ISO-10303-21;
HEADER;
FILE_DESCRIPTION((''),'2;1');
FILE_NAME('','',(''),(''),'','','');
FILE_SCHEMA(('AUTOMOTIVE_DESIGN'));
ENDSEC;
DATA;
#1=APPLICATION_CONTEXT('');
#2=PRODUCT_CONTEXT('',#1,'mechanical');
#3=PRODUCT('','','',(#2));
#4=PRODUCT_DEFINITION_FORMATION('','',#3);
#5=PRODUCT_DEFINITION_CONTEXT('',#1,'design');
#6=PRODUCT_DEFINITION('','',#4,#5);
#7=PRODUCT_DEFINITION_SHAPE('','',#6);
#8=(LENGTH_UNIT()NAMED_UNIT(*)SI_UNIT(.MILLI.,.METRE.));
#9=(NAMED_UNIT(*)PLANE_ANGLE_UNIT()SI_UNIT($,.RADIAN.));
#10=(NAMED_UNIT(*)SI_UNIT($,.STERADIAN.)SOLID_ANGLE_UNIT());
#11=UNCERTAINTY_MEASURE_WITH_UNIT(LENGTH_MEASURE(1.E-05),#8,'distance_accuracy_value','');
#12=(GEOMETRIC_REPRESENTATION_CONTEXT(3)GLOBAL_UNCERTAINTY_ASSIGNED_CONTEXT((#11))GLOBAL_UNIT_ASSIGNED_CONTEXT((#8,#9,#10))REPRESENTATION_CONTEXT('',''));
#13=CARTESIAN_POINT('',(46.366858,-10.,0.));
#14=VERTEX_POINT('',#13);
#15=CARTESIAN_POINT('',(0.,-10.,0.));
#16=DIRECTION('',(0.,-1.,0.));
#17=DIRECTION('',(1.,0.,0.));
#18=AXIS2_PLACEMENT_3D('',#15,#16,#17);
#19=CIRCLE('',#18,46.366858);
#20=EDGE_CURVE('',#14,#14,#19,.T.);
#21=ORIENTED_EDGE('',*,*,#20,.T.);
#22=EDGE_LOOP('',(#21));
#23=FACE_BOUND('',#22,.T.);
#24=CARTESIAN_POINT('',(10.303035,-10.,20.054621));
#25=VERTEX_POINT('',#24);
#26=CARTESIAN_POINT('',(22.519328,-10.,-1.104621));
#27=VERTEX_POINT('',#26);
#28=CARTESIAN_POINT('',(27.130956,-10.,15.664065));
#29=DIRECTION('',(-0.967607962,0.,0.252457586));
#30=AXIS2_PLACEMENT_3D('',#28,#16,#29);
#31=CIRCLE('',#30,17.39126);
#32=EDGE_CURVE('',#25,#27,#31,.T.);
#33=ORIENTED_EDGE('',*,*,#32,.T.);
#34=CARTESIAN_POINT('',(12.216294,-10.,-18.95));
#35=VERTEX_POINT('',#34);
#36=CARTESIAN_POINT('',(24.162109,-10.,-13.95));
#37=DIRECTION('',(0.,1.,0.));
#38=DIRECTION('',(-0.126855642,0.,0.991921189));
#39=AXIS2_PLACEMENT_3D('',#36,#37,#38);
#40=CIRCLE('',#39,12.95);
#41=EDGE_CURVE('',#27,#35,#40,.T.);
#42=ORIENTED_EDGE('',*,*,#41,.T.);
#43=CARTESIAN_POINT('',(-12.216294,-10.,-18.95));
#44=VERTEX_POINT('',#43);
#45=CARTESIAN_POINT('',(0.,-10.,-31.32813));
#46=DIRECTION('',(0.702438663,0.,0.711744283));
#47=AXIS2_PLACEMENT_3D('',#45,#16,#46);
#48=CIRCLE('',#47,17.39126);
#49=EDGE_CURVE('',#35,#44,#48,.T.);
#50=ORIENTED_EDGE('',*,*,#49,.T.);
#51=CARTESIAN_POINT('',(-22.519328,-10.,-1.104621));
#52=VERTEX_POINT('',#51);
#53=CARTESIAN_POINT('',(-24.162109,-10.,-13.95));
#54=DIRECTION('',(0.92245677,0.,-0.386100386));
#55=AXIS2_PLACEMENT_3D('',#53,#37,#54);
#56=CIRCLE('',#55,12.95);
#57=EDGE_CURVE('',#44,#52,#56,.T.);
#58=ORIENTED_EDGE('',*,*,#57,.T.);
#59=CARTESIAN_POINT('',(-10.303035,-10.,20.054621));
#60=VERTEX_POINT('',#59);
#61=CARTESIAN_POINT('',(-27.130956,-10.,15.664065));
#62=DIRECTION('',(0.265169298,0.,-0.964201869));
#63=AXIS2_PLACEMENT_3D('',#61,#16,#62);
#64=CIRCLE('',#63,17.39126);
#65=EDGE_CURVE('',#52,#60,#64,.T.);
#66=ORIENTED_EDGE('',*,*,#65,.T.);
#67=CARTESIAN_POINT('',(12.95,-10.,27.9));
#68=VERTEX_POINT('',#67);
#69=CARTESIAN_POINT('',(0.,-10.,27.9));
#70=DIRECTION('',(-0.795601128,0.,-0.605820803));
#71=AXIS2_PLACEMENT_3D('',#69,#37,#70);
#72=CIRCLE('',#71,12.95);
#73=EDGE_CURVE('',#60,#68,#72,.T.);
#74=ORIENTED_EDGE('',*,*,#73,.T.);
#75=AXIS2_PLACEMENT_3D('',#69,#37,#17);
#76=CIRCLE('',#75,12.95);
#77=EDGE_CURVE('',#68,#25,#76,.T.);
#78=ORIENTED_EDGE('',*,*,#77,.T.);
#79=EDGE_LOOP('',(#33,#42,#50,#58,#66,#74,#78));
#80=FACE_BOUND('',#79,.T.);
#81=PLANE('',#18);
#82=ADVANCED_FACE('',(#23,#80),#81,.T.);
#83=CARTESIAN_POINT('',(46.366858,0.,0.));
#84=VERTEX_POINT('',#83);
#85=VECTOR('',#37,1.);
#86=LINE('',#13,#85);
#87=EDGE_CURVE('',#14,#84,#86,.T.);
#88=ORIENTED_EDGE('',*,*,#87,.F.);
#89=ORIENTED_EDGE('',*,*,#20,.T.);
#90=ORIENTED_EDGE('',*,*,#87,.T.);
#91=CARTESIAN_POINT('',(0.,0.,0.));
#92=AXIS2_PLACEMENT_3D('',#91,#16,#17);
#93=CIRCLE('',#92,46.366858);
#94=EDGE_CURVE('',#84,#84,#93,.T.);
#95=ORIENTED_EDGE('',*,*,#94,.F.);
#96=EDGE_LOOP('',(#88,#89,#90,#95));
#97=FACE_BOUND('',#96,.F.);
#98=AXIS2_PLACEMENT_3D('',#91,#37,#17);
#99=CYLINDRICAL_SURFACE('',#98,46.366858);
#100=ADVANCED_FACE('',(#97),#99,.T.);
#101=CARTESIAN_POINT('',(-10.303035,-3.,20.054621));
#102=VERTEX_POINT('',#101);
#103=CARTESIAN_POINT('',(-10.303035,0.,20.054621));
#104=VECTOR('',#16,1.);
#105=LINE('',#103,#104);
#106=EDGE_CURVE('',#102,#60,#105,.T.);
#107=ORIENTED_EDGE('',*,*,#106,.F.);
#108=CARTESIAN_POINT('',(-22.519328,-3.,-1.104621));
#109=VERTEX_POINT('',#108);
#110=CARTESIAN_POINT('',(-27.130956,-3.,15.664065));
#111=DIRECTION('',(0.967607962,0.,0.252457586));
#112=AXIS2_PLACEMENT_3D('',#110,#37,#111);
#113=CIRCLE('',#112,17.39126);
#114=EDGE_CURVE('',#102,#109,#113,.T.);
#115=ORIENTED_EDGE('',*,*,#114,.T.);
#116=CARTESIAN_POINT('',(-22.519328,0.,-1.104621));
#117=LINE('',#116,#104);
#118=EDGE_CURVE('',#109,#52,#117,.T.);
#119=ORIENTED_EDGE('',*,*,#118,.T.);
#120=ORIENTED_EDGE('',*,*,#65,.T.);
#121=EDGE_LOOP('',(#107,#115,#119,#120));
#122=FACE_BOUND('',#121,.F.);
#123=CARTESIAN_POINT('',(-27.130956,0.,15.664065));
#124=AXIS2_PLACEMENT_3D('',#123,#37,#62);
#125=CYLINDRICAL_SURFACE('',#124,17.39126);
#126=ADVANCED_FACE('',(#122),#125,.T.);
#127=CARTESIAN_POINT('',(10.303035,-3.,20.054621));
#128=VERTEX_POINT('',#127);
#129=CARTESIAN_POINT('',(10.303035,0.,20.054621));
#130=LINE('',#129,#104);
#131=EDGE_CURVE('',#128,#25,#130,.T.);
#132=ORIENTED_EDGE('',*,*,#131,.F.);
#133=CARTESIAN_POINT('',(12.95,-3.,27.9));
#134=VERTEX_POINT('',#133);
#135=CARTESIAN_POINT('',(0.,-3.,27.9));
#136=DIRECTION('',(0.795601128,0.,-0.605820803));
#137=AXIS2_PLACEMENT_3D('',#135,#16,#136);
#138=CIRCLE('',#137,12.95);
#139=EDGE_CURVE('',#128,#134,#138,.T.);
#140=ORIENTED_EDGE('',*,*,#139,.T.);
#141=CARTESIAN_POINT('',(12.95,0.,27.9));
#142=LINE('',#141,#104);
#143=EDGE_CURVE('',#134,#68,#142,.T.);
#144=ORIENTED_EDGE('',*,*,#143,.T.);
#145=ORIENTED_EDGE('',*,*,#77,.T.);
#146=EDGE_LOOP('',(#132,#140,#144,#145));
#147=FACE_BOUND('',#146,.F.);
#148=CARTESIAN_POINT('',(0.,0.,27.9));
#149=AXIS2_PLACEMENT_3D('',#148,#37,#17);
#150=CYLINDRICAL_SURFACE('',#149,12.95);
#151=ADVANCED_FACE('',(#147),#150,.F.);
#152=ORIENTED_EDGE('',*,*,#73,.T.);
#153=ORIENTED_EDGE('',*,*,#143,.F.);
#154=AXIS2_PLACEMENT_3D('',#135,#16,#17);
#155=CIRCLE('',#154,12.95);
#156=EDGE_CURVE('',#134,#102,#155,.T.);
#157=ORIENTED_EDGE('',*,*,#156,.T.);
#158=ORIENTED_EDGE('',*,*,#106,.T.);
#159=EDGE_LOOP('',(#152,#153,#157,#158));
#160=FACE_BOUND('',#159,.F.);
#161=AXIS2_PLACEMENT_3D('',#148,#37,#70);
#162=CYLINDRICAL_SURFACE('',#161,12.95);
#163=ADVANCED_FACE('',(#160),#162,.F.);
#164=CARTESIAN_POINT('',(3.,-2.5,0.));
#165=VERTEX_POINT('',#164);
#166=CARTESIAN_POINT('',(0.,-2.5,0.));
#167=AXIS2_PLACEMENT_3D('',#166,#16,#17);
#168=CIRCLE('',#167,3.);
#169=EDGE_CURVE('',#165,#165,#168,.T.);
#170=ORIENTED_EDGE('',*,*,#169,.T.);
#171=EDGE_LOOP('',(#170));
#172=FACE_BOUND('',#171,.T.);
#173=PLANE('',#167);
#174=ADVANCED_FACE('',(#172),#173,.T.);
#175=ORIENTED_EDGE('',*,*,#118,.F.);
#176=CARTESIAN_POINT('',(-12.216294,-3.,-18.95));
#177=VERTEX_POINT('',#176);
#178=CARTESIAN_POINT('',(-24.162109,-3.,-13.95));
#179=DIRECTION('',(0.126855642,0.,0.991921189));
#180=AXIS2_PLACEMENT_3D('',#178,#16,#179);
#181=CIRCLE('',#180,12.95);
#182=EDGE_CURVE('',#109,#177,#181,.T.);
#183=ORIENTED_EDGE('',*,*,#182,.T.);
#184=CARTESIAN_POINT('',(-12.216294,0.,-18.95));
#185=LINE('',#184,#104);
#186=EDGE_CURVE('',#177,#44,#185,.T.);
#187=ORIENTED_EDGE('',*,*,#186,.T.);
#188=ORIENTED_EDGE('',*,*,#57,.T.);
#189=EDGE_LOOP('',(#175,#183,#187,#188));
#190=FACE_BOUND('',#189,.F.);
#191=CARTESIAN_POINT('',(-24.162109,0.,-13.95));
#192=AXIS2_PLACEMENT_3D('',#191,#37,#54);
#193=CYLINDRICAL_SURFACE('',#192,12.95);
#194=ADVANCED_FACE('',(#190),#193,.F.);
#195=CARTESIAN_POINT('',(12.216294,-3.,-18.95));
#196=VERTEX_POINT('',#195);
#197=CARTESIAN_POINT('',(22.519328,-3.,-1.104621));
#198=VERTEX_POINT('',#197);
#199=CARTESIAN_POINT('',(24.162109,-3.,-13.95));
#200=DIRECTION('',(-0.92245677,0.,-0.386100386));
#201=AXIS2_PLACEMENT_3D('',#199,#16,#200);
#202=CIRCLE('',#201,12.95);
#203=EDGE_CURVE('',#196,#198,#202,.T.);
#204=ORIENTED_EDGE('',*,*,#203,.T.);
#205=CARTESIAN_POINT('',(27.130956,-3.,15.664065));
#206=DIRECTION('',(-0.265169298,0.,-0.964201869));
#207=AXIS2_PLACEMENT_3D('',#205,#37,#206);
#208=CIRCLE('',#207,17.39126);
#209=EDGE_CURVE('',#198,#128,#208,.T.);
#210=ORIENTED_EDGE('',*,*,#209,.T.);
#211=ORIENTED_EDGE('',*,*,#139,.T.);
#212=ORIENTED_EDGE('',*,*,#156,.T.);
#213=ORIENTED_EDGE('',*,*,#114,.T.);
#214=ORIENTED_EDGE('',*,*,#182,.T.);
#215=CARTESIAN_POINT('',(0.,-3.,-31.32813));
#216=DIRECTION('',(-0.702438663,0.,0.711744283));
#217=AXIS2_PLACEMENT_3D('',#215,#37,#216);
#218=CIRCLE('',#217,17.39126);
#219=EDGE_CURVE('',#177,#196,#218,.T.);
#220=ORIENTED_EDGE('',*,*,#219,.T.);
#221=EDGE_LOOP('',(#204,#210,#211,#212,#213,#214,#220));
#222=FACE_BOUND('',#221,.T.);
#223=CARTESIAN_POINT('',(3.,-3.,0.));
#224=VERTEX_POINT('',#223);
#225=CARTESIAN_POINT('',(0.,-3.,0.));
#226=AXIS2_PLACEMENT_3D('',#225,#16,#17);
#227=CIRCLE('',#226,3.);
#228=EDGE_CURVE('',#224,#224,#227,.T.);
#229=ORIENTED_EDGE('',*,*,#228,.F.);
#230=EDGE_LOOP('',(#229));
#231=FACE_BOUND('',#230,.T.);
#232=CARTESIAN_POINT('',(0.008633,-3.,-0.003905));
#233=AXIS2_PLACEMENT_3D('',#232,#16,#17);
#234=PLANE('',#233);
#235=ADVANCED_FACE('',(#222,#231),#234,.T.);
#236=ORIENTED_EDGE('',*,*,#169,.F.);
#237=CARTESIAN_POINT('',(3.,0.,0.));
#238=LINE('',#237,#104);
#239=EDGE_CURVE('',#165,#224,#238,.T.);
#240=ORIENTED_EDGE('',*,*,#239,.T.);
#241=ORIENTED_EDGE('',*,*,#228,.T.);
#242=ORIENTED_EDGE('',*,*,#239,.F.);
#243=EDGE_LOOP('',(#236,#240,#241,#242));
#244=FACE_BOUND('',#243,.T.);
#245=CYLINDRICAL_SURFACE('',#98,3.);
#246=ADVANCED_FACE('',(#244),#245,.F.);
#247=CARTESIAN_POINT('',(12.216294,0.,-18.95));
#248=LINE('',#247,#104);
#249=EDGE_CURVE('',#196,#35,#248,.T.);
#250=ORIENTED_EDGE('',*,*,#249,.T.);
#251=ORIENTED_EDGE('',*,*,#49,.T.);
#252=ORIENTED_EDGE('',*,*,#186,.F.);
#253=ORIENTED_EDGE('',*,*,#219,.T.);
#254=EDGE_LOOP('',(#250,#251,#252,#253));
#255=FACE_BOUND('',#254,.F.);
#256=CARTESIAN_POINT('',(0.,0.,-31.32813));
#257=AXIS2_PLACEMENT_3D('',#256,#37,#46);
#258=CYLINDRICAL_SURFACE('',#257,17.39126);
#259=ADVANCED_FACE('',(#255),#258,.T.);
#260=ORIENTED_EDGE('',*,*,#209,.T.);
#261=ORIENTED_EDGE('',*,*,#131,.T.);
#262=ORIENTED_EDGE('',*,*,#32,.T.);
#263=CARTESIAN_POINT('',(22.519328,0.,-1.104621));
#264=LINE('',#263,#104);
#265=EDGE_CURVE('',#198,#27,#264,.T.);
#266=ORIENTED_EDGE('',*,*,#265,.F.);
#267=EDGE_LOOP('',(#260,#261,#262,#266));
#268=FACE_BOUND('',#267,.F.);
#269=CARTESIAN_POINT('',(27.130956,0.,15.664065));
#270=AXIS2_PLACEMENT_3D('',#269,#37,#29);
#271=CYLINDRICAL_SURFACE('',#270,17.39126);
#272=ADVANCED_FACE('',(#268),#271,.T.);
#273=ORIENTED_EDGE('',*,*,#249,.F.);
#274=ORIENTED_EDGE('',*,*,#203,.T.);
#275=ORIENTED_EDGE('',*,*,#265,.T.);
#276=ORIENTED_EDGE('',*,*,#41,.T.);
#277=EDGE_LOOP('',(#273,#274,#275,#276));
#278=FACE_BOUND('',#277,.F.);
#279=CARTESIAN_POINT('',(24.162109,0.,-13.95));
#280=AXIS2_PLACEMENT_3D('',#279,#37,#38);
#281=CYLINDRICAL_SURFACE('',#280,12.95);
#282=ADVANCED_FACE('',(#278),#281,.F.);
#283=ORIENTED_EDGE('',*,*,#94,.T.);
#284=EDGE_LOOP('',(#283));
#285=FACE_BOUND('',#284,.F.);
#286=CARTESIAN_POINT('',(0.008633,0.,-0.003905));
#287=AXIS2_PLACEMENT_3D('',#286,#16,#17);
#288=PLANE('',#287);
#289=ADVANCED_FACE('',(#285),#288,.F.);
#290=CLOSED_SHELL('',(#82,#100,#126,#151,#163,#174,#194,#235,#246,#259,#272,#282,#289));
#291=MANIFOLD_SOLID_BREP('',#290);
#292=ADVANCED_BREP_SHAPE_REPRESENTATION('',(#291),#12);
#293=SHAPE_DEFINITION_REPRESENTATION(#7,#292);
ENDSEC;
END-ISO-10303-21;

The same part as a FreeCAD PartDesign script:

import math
import FreeCAD as App
import Part
import Sketcher
from FreeCAD import Vector
Q = App.Units.Quantity

doc = App.newDocument("Part")
params = doc.addObject("Spreadsheet::Sheet", "Params")
for row, (alias, value) in enumerate([
    ("sketch1_radius", "12.95 mm"),
    ("sketch1_height", "5 mm"),
    ("pad1_length", "10 mm"),
    ("sketch2_diameter", "6 mm"),
    ("sketch2_radius", "12.95 mm"),
    ("sketch2_height", "5 mm"),
    ("pad2_length", "3 mm"),
    ("sketch3_diameter", "6 mm"),
    ("sketch3_radius", "12.95 mm"),
    ("sketch3_height", "5 mm"),
    ("pad3_length", "2.5 mm"),
], start=1):
    params.set(f"A{row}", alias)
    params.set(f"B{row}", "=" + value)
    params.setAlias(f"B{row}", alias)

body = doc.addObject("PartDesign::Body", "Body")

# Sketch on XZ plane
sketch1 = doc.addObject("Sketcher::SketchObject", "Sketch")
body.addObject(sketch1)
sketch1.AttachmentSupport = (doc.XZ_Plane, [""])
sketch1.MapMode = "FlatFace"
sketch1.addGeometry([
    Part.Circle(Vector(0, 0, 0), Vector(0, 0, 1), 46.366858),  # 0
    Part.ArcOfCircle(Part.Circle(Vector(-27.130956, 15.664065, 0), Vector(0, 0, 1), 17.39126), math.radians(-74.622987), math.radians(14.622987)),  # 1
    Part.ArcOfCircle(Part.Circle(Vector(0, 27.9, 0), Vector(0, 0, 1), 12.95), math.radians(0), math.radians(217.287929)),  # 2
    Part.ArcOfCircle(Part.Circle(Vector(0, 27.9, 0), Vector(0, 0, 1), 12.95), math.radians(-37.287929), math.radians(0)),  # 3
    Part.ArcOfCircle(Part.Circle(Vector(27.130956, 15.664065, 0), Vector(0, 0, 1), 17.39126), math.radians(165.377013), math.radians(254.622987)),  # 4
    Part.ArcOfCircle(Part.Circle(Vector(24.162109, -13.95, 0), Vector(0, 0, 1), 12.95), math.radians(-157.287929), math.radians(97.287929)),  # 5
    Part.ArcOfCircle(Part.Circle(Vector(0, -31.32813, 0), Vector(0, 0, 1), 17.39126), math.radians(45.377013), math.radians(134.622987)),  # 6
    Part.ArcOfCircle(Part.Circle(Vector(-24.162109, -13.95, 0), Vector(0, 0, 1), 12.95), math.radians(82.712071), math.radians(337.287929)),  # 7
], False)
sketch1.addConstraint([
    Sketcher.Constraint("Coincident", 1, 2, 2, 2),
    Sketcher.Constraint("Tangent", 2, 1, 3, 2),
    Sketcher.Constraint("Coincident", 3, 1, 4, 1),
    Sketcher.Constraint("Coincident", 4, 2, 5, 2),
    Sketcher.Constraint("Coincident", 5, 1, 6, 1),
    Sketcher.Constraint("Coincident", 6, 2, 7, 2),
    Sketcher.Constraint("Coincident", 7, 1, 1, 1),
    Sketcher.Constraint("Coincident", 0, 3, -1, 1),
    Sketcher.Constraint("Equal", 2, 3),
    Sketcher.Constraint("Equal", 1, 4),
    Sketcher.Constraint("Equal", 3, 5),
    Sketcher.Constraint("Equal", 4, 6),
    Sketcher.Constraint("Equal", 5, 7),
    Sketcher.Constraint("Symmetric", 1, 3, 4, 3, -2),
    Sketcher.Constraint("Symmetric", 5, 3, 7, 3, -2),
    Sketcher.Constraint("PointOnObject", 2, 3, -2),
    Sketcher.Constraint("PointOnObject", 6, 3, -2),
    Sketcher.Constraint("Horizontal", 3, 3, 2, 1),
    Sketcher.Constraint("Radius", 2, Q("12.95 mm")),
    Sketcher.Constraint("DistanceY", 5, 1, 5, 3, Q("5 mm")),
    Sketcher.Constraint("DistanceY", -1, 1, 2, 3, Q("27.9 mm")),
    Sketcher.Constraint("DistanceY", 5, 3, -1, 1, Q("13.95 mm")),
    Sketcher.Constraint("Radius", 1, Q("17.39126 mm")),
    Sketcher.Constraint("Diameter", 0, Q("92.733716 mm")),
    Sketcher.Constraint("DistanceX", -1, 1, 5, 3, Q("24.162109 mm")),
    Sketcher.Constraint("DistanceY", -1, 1, 1, 2, Q("20.054621 mm")),
    Sketcher.Constraint("DistanceX", -1, 1, 4, 2, Q("22.519328 mm")),
])
sketch1.setExpression("Constraints[18]", "Params.sketch1_radius")
sketch1.setExpression("Constraints[19]", "Params.sketch1_height")
pad1 = doc.addObject("PartDesign::Pad", "Pad")
body.addObject(pad1)
pad1.Profile = sketch1
pad1.setExpression("Length", "Params.pad1_length")

# Sketch on XZ plane
sketch2 = doc.addObject("Sketcher::SketchObject", "Sketch001")
body.addObject(sketch2)
sketch2.AttachmentSupport = (doc.XZ_Plane, [""])
sketch2.MapMode = "FlatFace"
sketch2.addGeometry([
    Part.ArcOfCircle(Part.Circle(Vector(27.130956, 15.664065, 0), Vector(0, 0, 1), 17.39126), math.radians(165.377013), math.radians(254.622987)),  # 0
    Part.ArcOfCircle(Part.Circle(Vector(0, 27.9, 0), Vector(0, 0, 1), 12.95), math.radians(-37.287929), math.radians(0)),  # 1
    Part.ArcOfCircle(Part.Circle(Vector(0, 27.9, 0), Vector(0, 0, 1), 12.95), math.radians(0), math.radians(217.287929)),  # 2
    Part.ArcOfCircle(Part.Circle(Vector(-27.130956, 15.664065, 0), Vector(0, 0, 1), 17.39126), math.radians(-74.622987), math.radians(14.622987)),  # 3
    Part.ArcOfCircle(Part.Circle(Vector(-24.162109, -13.95, 0), Vector(0, 0, 1), 12.95), math.radians(82.712071), math.radians(337.287929)),  # 4
    Part.ArcOfCircle(Part.Circle(Vector(0, -31.32813, 0), Vector(0, 0, 1), 17.39126), math.radians(45.377013), math.radians(134.622987)),  # 5
    Part.ArcOfCircle(Part.Circle(Vector(24.162109, -13.95, 0), Vector(0, 0, 1), 12.95), math.radians(-157.287929), math.radians(97.287929)),  # 6
    Part.Circle(Vector(0, 0, 0), Vector(0, 0, 1), 3),  # 7
], False)
sketch2.addConstraint([
    Sketcher.Constraint("Coincident", 0, 1, 1, 1),
    Sketcher.Constraint("Tangent", 1, 2, 2, 1),
    Sketcher.Constraint("Coincident", 2, 2, 3, 2),
    Sketcher.Constraint("Coincident", 3, 1, 4, 1),
    Sketcher.Constraint("Coincident", 4, 2, 5, 2),
    Sketcher.Constraint("Coincident", 5, 1, 6, 1),
    Sketcher.Constraint("Coincident", 6, 2, 0, 2),
    Sketcher.Constraint("Coincident", 7, 3, -1, 1),
    Sketcher.Constraint("Equal", 1, 2),
    Sketcher.Constraint("Equal", 0, 3),
    Sketcher.Constraint("Equal", 2, 4),
    Sketcher.Constraint("Equal", 3, 5),
    Sketcher.Constraint("Equal", 4, 6),
    Sketcher.Constraint("Symmetric", 0, 3, 3, 3, -2),
    Sketcher.Constraint("Symmetric", 4, 3, 6, 3, -2),
    Sketcher.Constraint("PointOnObject", 1, 3, -2),
    Sketcher.Constraint("PointOnObject", 5, 3, -2),
    Sketcher.Constraint("Horizontal", 2, 3, 1, 2),
    Sketcher.Constraint("Diameter", 7, Q("6 mm")),
    Sketcher.Constraint("Radius", 1, Q("12.95 mm")),
    Sketcher.Constraint("DistanceY", 4, 2, 4, 3, Q("5 mm")),
    Sketcher.Constraint("DistanceY", -1, 1, 1, 3, Q("27.9 mm")),
    Sketcher.Constraint("DistanceY", 4, 3, -1, 1, Q("13.95 mm")),
    Sketcher.Constraint("Radius", 0, Q("17.39126 mm")),
    Sketcher.Constraint("DistanceX", 4, 3, -1, 1, Q("24.162109 mm")),
    Sketcher.Constraint("DistanceY", -1, 1, 0, 1, Q("20.054621 mm")),
    Sketcher.Constraint("DistanceX", 3, 1, -1, 1, Q("22.519328 mm")),
])
sketch2.setExpression("Constraints[18]", "Params.sketch2_diameter")
sketch2.setExpression("Constraints[19]", "Params.sketch2_radius")
sketch2.setExpression("Constraints[20]", "Params.sketch2_height")
pad2 = doc.addObject("PartDesign::Pad", "Pad001")
body.addObject(pad2)
pad2.Profile = sketch2
pad2.setExpression("Length", "Params.pad2_length")

# Sketch on XZ plane
sketch3 = doc.addObject("Sketcher::SketchObject", "Sketch002")
body.addObject(sketch3)
sketch3.AttachmentSupport = (doc.XZ_Plane, [""])
sketch3.MapMode = "FlatFace"
sketch3.addGeometry([
    Part.Circle(Vector(0, 0, 0), Vector(0, 0, 1), 46.366858),  # 0
    Part.ArcOfCircle(Part.Circle(Vector(-27.130956, 15.664065, 0), Vector(0, 0, 1), 17.39126), math.radians(-74.622987), math.radians(14.622987)),  # 1
    Part.ArcOfCircle(Part.Circle(Vector(0, 27.9, 0), Vector(0, 0, 1), 12.95), math.radians(0), math.radians(217.287929)),  # 2
    Part.ArcOfCircle(Part.Circle(Vector(0, 27.9, 0), Vector(0, 0, 1), 12.95), math.radians(-37.287929), math.radians(0)),  # 3
    Part.ArcOfCircle(Part.Circle(Vector(27.130956, 15.664065, 0), Vector(0, 0, 1), 17.39126), math.radians(165.377013), math.radians(254.622987)),  # 4
    Part.ArcOfCircle(Part.Circle(Vector(24.162109, -13.95, 0), Vector(0, 0, 1), 12.95), math.radians(-157.287929), math.radians(97.287929)),  # 5
    Part.ArcOfCircle(Part.Circle(Vector(0, -31.32813, 0), Vector(0, 0, 1), 17.39126), math.radians(45.377013), math.radians(134.622987)),  # 6
    Part.ArcOfCircle(Part.Circle(Vector(-24.162109, -13.95, 0), Vector(0, 0, 1), 12.95), math.radians(82.712071), math.radians(337.287929)),  # 7
    Part.Circle(Vector(0, 0, 0), Vector(0, 0, 1), 3),  # 8
], False)
sketch3.addConstraint([
    Sketcher.Constraint("Coincident", 1, 2, 2, 2),
    Sketcher.Constraint("Tangent", 2, 1, 3, 2),
    Sketcher.Constraint("Coincident", 3, 1, 4, 1),
    Sketcher.Constraint("Coincident", 4, 2, 5, 2),
    Sketcher.Constraint("Coincident", 5, 1, 6, 1),
    Sketcher.Constraint("Coincident", 6, 2, 7, 2),
    Sketcher.Constraint("Coincident", 7, 1, 1, 1),
    Sketcher.Constraint("Coincident", 0, 3, -1, 1),
    Sketcher.Constraint("Coincident", 8, 3, -1, 1),
    Sketcher.Constraint("Equal", 2, 3),
    Sketcher.Constraint("Equal", 1, 4),
    Sketcher.Constraint("Equal", 3, 5),
    Sketcher.Constraint("Equal", 4, 6),
    Sketcher.Constraint("Equal", 5, 7),
    Sketcher.Constraint("Symmetric", 1, 3, 4, 3, -2),
    Sketcher.Constraint("Symmetric", 5, 3, 7, 3, -2),
    Sketcher.Constraint("PointOnObject", 2, 3, -2),
    Sketcher.Constraint("PointOnObject", 6, 3, -2),
    Sketcher.Constraint("Horizontal", 3, 3, 2, 1),
    Sketcher.Constraint("Diameter", 8, Q("6 mm")),
    Sketcher.Constraint("Radius", 2, Q("12.95 mm")),
    Sketcher.Constraint("DistanceY", 5, 1, 5, 3, Q("5 mm")),
    Sketcher.Constraint("DistanceY", -1, 1, 2, 3, Q("27.9 mm")),
    Sketcher.Constraint("DistanceY", 5, 3, -1, 1, Q("13.95 mm")),
    Sketcher.Constraint("Radius", 1, Q("17.39126 mm")),
    Sketcher.Constraint("Diameter", 0, Q("92.733716 mm")),
    Sketcher.Constraint("DistanceX", -1, 1, 5, 3, Q("24.162109 mm")),
    Sketcher.Constraint("DistanceY", -1, 1, 1, 2, Q("20.054621 mm")),
    Sketcher.Constraint("DistanceX", -1, 1, 4, 2, Q("22.519328 mm")),
])
sketch3.setExpression("Constraints[19]", "Params.sketch3_diameter")
sketch3.setExpression("Constraints[20]", "Params.sketch3_radius")
sketch3.setExpression("Constraints[21]", "Params.sketch3_height")
pad3 = doc.addObject("PartDesign::Pad", "Pad002")
body.addObject(pad3)
pad3.Profile = sketch3
pad3.setExpression("Length", "Params.pad3_length")

doc.recompute()
